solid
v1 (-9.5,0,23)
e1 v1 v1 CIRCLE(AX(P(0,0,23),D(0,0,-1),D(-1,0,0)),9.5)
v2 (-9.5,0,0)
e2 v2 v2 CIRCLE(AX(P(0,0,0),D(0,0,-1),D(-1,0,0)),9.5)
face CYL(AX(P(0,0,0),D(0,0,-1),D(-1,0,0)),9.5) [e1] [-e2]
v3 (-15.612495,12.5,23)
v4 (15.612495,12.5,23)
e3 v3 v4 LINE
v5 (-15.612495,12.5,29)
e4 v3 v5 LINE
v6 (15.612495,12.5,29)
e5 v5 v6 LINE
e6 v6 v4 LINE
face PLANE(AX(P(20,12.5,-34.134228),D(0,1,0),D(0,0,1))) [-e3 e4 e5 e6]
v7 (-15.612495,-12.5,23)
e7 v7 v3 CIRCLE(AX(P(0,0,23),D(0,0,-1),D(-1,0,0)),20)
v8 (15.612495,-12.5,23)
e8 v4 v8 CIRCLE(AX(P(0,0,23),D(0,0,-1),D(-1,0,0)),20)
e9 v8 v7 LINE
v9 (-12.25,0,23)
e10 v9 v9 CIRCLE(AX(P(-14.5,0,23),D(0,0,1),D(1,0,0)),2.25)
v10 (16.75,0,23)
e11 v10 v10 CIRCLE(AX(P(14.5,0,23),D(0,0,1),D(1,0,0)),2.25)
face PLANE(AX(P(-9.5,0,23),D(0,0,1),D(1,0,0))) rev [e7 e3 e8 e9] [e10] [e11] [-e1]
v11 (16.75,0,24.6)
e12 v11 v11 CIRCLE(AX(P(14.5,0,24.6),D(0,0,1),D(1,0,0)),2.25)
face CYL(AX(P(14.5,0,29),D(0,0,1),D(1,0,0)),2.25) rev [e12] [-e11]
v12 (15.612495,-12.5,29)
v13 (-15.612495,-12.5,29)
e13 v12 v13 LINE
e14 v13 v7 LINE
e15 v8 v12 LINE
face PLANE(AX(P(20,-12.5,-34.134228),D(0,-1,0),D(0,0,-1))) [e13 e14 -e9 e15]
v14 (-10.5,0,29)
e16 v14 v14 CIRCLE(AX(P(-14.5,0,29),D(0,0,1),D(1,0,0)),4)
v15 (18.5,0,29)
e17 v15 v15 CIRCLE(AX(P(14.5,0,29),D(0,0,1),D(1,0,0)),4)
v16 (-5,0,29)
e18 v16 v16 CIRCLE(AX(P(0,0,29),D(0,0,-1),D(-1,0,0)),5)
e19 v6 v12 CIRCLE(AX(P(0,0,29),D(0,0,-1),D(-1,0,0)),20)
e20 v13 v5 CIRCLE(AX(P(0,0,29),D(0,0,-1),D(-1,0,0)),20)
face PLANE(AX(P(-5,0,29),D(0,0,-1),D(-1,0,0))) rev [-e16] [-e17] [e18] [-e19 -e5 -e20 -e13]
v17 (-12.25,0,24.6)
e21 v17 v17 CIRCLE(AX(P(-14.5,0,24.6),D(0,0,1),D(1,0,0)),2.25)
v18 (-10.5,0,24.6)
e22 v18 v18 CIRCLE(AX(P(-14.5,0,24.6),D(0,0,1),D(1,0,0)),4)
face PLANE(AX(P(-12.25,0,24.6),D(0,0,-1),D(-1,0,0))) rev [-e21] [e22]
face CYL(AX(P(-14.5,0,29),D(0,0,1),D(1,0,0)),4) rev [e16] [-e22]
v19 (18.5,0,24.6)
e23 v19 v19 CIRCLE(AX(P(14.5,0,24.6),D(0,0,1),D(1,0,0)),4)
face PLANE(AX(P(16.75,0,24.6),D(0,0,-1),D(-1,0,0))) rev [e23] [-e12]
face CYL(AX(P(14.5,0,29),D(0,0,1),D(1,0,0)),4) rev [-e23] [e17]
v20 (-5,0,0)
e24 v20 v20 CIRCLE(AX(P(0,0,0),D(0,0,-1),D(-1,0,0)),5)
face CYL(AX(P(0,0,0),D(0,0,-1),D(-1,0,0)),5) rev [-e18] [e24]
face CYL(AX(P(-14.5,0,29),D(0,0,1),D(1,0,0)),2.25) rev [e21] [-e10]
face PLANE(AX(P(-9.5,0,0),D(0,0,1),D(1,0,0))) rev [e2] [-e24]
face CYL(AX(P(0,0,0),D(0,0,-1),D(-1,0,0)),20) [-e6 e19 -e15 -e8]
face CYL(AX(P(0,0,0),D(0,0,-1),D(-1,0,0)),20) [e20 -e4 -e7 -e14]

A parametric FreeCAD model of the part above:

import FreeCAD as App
import Part
import Sketcher
Q = App.Units.Quantity


def add_polygon(sketch, points):
    """Adds a closed chain of lines whose ends are joined by coincident constraints."""
    first, n = sketch.GeometryCount, len(points)
    for a, b in zip(points, points[1:] + points[:1]):
        sketch.addGeometry(Part.LineSegment(App.Vector(*a, 0), App.Vector(*b, 0)), False)
    for i in range(n):
        sketch.addConstraint(Sketcher.Constraint("Coincident", first + i, 2, first + (i + 1) % n, 1))

doc = App.newDocument("Part")
body = doc.addObject("PartDesign::Body", "Body")

# Sketch on XZ plane
sketch1 = body.newObject("Sketcher::SketchObject", "Sketch")
sketch1.AttachmentSupport = (doc.getObject("XZ_Plane"), [""])
sketch1.MapMode = "FlatFace"
add_polygon(sketch1, [(-5, 0), (-5, 29), (-20, 29), (-20, 23), (-9.5, 23), (-9.5, 0)])  # lines 0-5
sketch1.addConstraint([
    Sketcher.Constraint("Vertical", 0),
    Sketcher.Constraint("Horizontal", 1),
    Sketcher.Constraint("Vertical", 2),
    Sketcher.Constraint("Horizontal", 3),
    Sketcher.Constraint("Vertical", 4),
    Sketcher.Constraint("Horizontal", 5),
    Sketcher.Constraint("PointOnObject", 4, 2, -1),
    Sketcher.Constraint("DistanceX", 1, 2, 1, 1, Q("15 mm")),
    Sketcher.Constraint("DistanceY", 0, 1, 0, 2, Q("29 mm")),
    Sketcher.Constraint("DistanceY", 2, 2, 2, 1, Q("6 mm")),
    Sketcher.Constraint("DistanceX", 3, 1, 3, 2, Q("10.5 mm")),
    Sketcher.Constraint("DistanceX", 0, 2, -1, 1, Q("5 mm")),
])
revolution = body.newObject("PartDesign::Revolution", "Revolution")
revolution.Profile = sketch1
revolution.ReferenceAxis = (sketch1, ["V_Axis"])
revolution.Angle = 360

# Sketch on XY plane
sketch2 = body.newObject("Sketcher::SketchObject", "Sketch001")
sketch2.AttachmentSupport = (doc.getObject("XY_Plane"), [""])
sketch2.MapMode = "FlatFace"
sketch2.AttachmentOffset = App.Placement(App.Vector(0, 0, 29), App.Rotation())
add_polygon(sketch2, [(-27, 27), (-27, -27), (27, -27), (27, 27)])  # lines 0-3
add_polygon(sketch2, [(20, -12), (-20, -12), (-20, 12), (20, 12)])  # lines 4-7
sketch2.addConstraint([
    Sketcher.Constraint("Vertical", 0),
    Sketcher.Constraint("Horizontal", 1),
    Sketcher.Constraint("Vertical", 2),
    Sketcher.Constraint("Horizontal", 3),
    Sketcher.Constraint("Horizontal", 4),
    Sketcher.Constraint("Vertical", 5),
    Sketcher.Constraint("Horizontal", 6),
    Sketcher.Constraint("Vertical", 7),
    Sketcher.Constraint("Symmetric", 0, 2, 2, 2, -1, 1),
    Sketcher.Constraint("Symmetric", 4, 2, 6, 2, -1, 1),
    Sketcher.Constraint("Equal", 3, 0),
    Sketcher.Constraint("DistanceX", 4, 2, 4, 1, Q("40 mm")),
    Sketcher.Constraint("DistanceY", 5, 1, 5, 2, Q("25 mm")),
    Sketcher.Constraint("DistanceX", 1, 1, 1, 2, Q("54.714 mm")),
])
pocket1 = body.newObject("PartDesign::Pocket", "Pocket")
pocket1.Profile = sketch2
pocket1.Length = 6

# Sketch on XY plane
sketch3 = body.newObject("Sketcher::SketchObject", "Sketch002")
sketch3.AttachmentSupport = (doc.getObject("XY_Plane"), [""])
sketch3.MapMode = "FlatFace"
sketch3.AttachmentOffset = App.Placement(App.Vector(0, 0, 29), App.Rotation())
sketch3.addGeometry([
    Part.Circle(App.Vector(-14.5, 0, 0), App.Vector(0, 0, 1), 2.2),
    Part.Circle(App.Vector(14.5, 0, 0), App.Vector(0, 0, 1), 2.2),
], False)
sketch3.addConstraint([
    Sketcher.Constraint("Equal", 0, 1),
    Sketcher.Constraint("Symmetric", 0, 3, 1, 3, -1, 1),
    Sketcher.Constraint("PointOnObject", 0, 3, -1),
    Sketcher.Constraint("Diameter", 0, Q("4.5 mm")),
    Sketcher.Constraint("DistanceX", 0, 3, 1, 3, Q("29 mm")),
])
doc.recompute()
hole = body.newObject("PartDesign::Hole", "Hole")
hole.Profile = sketch3
hole.ThreadType = "None"
hole.Diameter = 4.5
hole.DepthType = "ThroughAll"
hole.HoleCutType = "Counterbore"
hole.HoleCutDiameter = 8
hole.HoleCutDepth = 4.4

doc.recompute()
